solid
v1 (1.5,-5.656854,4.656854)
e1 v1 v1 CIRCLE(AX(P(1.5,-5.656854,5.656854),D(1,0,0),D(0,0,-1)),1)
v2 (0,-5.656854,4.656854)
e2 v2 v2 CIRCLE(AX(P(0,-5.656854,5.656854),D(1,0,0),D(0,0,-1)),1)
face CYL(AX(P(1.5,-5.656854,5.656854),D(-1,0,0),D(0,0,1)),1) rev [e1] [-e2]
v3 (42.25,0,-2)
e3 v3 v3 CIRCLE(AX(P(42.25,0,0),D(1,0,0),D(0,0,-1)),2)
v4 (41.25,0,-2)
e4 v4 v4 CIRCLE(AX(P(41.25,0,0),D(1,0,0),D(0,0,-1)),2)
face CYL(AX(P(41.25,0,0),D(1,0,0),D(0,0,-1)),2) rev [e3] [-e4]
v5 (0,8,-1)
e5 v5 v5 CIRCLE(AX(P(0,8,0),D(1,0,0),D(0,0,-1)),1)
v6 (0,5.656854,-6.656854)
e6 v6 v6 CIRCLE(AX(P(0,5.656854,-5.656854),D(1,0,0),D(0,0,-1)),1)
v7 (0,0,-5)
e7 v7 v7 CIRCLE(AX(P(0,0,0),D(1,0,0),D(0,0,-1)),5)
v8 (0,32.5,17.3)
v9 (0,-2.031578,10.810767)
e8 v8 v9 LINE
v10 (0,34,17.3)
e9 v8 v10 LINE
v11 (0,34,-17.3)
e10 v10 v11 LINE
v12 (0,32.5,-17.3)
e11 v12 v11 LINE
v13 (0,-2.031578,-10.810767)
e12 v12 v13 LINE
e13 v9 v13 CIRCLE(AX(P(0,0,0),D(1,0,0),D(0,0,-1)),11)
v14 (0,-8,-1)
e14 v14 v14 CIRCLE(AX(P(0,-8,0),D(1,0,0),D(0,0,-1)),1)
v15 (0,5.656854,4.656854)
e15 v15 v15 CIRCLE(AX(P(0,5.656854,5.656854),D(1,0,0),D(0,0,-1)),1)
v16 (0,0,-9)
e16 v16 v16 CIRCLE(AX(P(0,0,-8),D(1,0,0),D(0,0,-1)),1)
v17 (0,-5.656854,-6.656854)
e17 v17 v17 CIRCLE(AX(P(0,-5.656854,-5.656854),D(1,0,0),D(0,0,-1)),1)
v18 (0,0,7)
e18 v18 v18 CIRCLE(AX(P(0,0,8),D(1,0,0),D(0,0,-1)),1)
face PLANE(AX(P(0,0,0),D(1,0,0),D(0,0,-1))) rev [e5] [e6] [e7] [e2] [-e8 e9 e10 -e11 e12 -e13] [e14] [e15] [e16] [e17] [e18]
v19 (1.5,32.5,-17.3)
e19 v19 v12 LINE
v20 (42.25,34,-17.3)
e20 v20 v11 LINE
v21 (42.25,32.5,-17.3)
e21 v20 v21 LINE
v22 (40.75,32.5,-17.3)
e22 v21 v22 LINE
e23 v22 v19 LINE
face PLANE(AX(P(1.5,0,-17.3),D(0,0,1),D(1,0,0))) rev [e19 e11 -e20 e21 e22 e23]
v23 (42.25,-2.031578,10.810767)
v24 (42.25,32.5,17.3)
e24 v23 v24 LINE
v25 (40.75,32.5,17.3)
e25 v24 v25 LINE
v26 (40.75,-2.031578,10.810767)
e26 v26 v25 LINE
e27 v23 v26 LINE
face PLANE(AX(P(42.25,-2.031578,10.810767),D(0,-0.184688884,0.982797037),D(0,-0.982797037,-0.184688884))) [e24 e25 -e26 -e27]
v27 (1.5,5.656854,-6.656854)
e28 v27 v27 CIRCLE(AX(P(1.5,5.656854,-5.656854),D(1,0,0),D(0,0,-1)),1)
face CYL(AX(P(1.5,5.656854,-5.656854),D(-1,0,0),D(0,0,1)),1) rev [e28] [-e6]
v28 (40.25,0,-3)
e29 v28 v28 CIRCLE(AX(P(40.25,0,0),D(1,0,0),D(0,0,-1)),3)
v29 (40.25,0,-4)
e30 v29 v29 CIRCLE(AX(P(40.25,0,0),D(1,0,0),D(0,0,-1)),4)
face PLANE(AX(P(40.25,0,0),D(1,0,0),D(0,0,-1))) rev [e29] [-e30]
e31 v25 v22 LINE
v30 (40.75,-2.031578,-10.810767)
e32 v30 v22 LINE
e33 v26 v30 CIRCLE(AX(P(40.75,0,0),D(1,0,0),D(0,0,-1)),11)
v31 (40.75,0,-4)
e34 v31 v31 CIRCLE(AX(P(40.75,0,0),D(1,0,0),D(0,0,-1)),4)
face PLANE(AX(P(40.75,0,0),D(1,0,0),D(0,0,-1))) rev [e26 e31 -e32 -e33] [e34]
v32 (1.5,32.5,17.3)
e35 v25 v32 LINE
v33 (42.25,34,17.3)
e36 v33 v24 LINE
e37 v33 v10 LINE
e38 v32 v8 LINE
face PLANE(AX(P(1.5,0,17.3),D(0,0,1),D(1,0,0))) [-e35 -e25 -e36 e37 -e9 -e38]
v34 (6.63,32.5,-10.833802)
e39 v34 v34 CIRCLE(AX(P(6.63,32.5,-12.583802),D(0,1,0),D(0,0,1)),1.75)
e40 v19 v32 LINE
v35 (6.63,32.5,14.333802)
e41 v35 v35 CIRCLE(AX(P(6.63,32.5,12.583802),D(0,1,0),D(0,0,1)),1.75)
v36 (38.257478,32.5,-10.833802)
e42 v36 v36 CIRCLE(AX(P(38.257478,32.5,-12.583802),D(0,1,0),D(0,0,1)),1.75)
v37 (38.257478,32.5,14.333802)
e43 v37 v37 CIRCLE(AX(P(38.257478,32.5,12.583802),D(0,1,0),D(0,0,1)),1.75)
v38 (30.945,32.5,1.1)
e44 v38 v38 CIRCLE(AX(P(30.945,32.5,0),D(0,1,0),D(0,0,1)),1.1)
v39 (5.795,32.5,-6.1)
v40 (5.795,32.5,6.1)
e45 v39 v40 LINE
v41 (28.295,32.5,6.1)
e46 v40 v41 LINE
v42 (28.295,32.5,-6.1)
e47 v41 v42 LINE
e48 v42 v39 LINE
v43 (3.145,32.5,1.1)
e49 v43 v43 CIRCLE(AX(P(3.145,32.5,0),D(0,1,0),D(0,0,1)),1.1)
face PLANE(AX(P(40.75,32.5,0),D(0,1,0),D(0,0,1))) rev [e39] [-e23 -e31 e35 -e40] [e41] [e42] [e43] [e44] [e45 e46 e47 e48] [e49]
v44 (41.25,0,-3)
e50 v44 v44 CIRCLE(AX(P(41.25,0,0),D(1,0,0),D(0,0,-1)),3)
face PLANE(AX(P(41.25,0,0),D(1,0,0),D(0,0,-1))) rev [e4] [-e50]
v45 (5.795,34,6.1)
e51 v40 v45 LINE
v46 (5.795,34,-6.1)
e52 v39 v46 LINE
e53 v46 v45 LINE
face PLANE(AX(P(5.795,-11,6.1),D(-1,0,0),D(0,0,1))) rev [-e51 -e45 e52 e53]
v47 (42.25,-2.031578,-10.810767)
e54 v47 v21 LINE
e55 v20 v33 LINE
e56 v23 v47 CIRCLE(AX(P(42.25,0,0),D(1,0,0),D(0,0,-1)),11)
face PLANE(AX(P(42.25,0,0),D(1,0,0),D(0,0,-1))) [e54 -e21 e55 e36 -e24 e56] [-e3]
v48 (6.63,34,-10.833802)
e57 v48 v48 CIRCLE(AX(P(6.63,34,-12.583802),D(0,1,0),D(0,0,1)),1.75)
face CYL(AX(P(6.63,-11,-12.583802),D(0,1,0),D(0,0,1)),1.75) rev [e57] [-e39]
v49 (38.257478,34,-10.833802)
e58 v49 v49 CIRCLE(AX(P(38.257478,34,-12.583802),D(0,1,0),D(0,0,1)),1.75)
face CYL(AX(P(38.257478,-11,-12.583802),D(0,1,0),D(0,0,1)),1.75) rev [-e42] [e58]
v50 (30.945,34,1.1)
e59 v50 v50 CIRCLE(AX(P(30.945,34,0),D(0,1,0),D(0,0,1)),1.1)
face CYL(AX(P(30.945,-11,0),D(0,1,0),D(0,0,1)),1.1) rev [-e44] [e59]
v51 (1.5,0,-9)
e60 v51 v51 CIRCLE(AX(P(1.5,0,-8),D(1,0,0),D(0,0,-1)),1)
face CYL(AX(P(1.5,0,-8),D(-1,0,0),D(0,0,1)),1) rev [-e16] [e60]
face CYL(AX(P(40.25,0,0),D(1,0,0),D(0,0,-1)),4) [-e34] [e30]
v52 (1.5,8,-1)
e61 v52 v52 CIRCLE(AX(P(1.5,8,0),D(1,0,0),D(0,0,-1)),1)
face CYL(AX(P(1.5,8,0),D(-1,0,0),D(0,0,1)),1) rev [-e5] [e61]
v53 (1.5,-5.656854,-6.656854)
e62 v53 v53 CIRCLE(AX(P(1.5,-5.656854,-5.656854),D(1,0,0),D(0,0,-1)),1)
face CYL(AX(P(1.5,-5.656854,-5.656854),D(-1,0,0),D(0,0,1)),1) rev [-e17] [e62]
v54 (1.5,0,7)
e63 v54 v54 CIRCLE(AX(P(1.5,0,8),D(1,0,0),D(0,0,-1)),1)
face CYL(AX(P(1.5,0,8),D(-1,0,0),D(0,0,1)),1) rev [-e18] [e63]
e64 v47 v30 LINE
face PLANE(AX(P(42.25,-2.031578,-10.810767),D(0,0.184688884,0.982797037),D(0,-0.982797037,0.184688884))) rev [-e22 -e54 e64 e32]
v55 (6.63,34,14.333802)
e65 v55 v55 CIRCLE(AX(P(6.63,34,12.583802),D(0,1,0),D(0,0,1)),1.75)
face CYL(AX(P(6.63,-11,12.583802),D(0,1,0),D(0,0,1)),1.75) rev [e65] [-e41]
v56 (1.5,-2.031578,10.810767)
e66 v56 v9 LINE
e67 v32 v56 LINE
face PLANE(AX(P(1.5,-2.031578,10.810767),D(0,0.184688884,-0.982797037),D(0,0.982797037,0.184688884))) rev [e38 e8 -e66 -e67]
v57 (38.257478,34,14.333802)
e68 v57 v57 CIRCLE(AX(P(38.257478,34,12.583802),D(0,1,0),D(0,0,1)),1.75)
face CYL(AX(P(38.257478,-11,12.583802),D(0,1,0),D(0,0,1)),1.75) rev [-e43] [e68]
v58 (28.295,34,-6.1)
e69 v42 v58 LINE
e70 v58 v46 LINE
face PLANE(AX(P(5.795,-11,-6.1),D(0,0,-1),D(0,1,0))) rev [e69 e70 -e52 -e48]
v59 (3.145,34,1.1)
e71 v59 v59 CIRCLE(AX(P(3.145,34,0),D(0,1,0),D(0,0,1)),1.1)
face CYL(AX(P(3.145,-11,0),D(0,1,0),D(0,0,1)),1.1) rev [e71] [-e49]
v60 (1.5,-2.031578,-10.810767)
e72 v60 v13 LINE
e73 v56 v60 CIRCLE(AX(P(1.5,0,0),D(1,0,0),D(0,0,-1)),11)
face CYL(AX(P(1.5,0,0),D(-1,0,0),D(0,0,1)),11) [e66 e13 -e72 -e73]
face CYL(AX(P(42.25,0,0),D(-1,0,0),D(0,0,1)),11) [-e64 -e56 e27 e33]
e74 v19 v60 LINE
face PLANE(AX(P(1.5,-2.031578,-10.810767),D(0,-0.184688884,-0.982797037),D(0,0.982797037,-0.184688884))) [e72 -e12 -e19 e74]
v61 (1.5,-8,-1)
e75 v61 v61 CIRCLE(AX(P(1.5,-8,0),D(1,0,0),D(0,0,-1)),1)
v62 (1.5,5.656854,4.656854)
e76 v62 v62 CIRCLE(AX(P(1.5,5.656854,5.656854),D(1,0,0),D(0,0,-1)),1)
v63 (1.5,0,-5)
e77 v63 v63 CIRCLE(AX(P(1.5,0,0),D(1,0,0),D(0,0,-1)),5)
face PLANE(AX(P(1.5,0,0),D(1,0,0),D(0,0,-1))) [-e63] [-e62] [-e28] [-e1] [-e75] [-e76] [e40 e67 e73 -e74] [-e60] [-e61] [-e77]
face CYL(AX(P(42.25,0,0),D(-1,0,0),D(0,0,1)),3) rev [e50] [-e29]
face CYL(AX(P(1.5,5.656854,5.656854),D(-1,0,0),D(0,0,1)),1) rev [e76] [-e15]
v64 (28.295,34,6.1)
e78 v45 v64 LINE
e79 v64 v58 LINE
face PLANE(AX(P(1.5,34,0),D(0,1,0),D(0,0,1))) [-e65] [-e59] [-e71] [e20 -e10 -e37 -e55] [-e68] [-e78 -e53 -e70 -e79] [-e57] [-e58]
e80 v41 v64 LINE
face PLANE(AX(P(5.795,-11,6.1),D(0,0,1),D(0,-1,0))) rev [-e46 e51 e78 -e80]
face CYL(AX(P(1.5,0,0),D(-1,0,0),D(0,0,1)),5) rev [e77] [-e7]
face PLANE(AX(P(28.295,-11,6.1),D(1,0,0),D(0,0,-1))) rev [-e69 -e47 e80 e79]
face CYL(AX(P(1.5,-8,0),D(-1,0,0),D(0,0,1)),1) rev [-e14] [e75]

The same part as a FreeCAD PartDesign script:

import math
import FreeCAD as App
import Part
import Sketcher
from FreeCAD import Vector
Q = App.Units.Quantity

doc = App.newDocument("Part")
body = doc.addObject("PartDesign::Body", "Body")

# Sketch on YZ plane
sketch1 = body.newObject("Sketcher::SketchObject", "Sketch")
sketch1.AttachmentSupport = (doc.getObject("YZ_Plane"), [""])
sketch1.MapMode = "FlatFace"
sketch1.addGeometry(Part.LineSegment(Vector(32.5, 17.3, 0), Vector(-2, 10.8, 0)), False)
sketch1.addGeometry(Part.ArcOfCircle(Part.Circle(Vector(0, 0, 0), Vector(0, 0, 1), 11), math.radians(101), math.radians(259)), False)
sketch1.addGeometry(Part.LineSegment(Vector(-2, -10.8, 0), Vector(32.5, -17.3, 0)), False)
sketch1.addGeometry(Part.LineSegment(Vector(32.5, -17.3, 0), Vector(34, -17.3, 0)), False)
sketch1.addGeometry(Part.LineSegment(Vector(34, -17.3, 0), Vector(34, 17.3, 0)), False)
sketch1.addGeometry(Part.LineSegment(Vector(34, 17.3, 0), Vector(32.5, 17.3, 0)), False)
sketch1.addGeometry(Part.Circle(Vector(-5.7, 5.7, 0), Vector(0, 0, 1), 1), False)
sketch1.addGeometry(Part.Circle(Vector(-8, 0, 0), Vector(0, 0, 1), 1), False)
sketch1.addGeometry(Part.Circle(Vector(-5.7, -5.7, 0), Vector(0, 0, 1), 1), False)
sketch1.addGeometry(Part.Circle(Vector(0, 8, 0), Vector(0, 0, 1), 1), False)
sketch1.addGeometry(Part.Circle(Vector(5.7, 5.7, 0), Vector(0, 0, 1), 1), False)
sketch1.addGeometry(Part.Circle(Vector(0, 0, 0), Vector(0, 0, 1), 5), False)
sketch1.addGeometry(Part.Circle(Vector(0, -8, 0), Vector(0, 0, 1), 1), False)
sketch1.addGeometry(Part.Circle(Vector(8, 0, 0), Vector(0, 0, 1), 1), False)
sketch1.addGeometry(Part.Circle(Vector(5.7, -5.7, 0), Vector(0, 0, 1), 1), False)
sketch1.addConstraint(Sketcher.Constraint("Tangent", 0, 2, 1, 1))
sketch1.addConstraint(Sketcher.Constraint("Tangent", 1, 2, 2, 1))
sketch1.addConstraint(Sketcher.Constraint("Coincident", 2, 2, 3, 1))
sketch1.addConstraint(Sketcher.Constraint("Coincident", 3, 2, 4, 1))
sketch1.addConstraint(Sketcher.Constraint("Coincident", 4, 2, 5, 1))
sketch1.addConstraint(Sketcher.Constraint("Coincident", 5, 2, 0, 1))
sketch1.addConstraint(Sketcher.Constraint("Horizontal", 3))
sketch1.addConstraint(Sketcher.Constraint("Vertical", 4))
sketch1.addConstraint(Sketcher.Constraint("Horizontal", 5))
sketch1.addConstraint(Sketcher.Constraint("Coincident", 1, 3, -1, 1))
sketch1.addConstraint(Sketcher.Constraint("Coincident", 11, 3, -1, 1))
sketch1.addConstraint(Sketcher.Constraint("Equal", 6, 7))
sketch1.addConstraint(Sketcher.Constraint("Equal", 7, 8))
sketch1.addConstraint(Sketcher.Constraint("Equal", 8, 9))
sketch1.addConstraint(Sketcher.Constraint("Equal", 9, 10))
sketch1.addConstraint(Sketcher.Constraint("Equal", 10, 12))
sketch1.addConstraint(Sketcher.Constraint("Equal", 12, 13))
sketch1.addConstraint(Sketcher.Constraint("Equal", 13, 14))
sketch1.addConstraint(Sketcher.Constraint("Symmetric", 8, 3, 10, 3, -1, 1))
sketch1.addConstraint(Sketcher.Constraint("Symmetric", 9, 3, 12, 3, -1, 1))
sketch1.addConstraint(Sketcher.Constraint("Symmetric", 7, 3, 13, 3, -1, 1))
sketch1.addConstraint(Sketcher.Constraint("Symmetric", 6, 3, 14, 3, -1, 1))
sketch1.addConstraint(Sketcher.Constraint("Symmetric", 6, 3, 10, 3, -2))
sketch1.addConstraint(Sketcher.Constraint("Symmetric", 2, 2, 5, 2, -1))
sketch1.addConstraint(Sketcher.Constraint("PointOnObject", 7, 3, -1))
sketch1.addConstraint(Sketcher.Constraint("PointOnObject", 9, 3, -2))
sketch1.addConstraint(Sketcher.Constraint("Diameter", 6, Q("2 mm")))
sketch1.addConstraint(Sketcher.Constraint("Diameter", 11, Q("10 mm")))
sketch1.addConstraint(Sketcher.Constraint("Radius", 1, Q("11 mm")))
sketch1.addConstraint(Sketcher.Constraint("DistanceX", 3, 1, 3, 2, Q("1.5 mm")))
sketch1.addConstraint(Sketcher.Constraint("DistanceY", 4, 1, 4, 2, Q("34.6 mm")))
sketch1.addConstraint(Sketcher.Constraint("DistanceX", 7, 3, -1, 1, Q("8 mm")))
sketch1.addConstraint(Sketcher.Constraint("DistanceY", -1, 1, 9, 3, Q("8 mm")))
sketch1.addConstraint(Sketcher.Constraint("DistanceX", -1, 1, 3, 2, Q("34 mm")))
sketch1.addConstraint(Sketcher.Constraint("DistanceY", 8, 3, 6, 3, Q("11.313708 mm")))
sketch1.addConstraint(Sketcher.Constraint("DistanceX", 6, 3, 10, 3, Q("11.313708 mm")))
pad1 = body.newObject("PartDesign::Pad", "Pad")
pad1.Profile = sketch1
pad1.Length = 1.5

# Sketch on YZ plane
sketch2 = body.newObject("Sketcher::SketchObject", "Sketch001")
sketch2.AttachmentSupport = (doc.getObject("YZ_Plane"), [""])
sketch2.MapMode = "FlatFace"
sketch2.addGeometry(Part.LineSegment(Vector(34, 17.3, 0), Vector(32.5, 17.3, 0)), False)
sketch2.addGeometry(Part.LineSegment(Vector(32.5, 17.3, 0), Vector(32.5, -17.3, 0)), False)
sketch2.addGeometry(Part.LineSegment(Vector(32.5, -17.3, 0), Vector(34, -17.3, 0)), False)
sketch2.addGeometry(Part.LineSegment(Vector(34, -17.3, 0), Vector(34, 17.3, 0)), False)
sketch2.addConstraint(Sketcher.Constraint("Coincident", 0, 2, 1, 1))
sketch2.addConstraint(Sketcher.Constraint("Coincident", 1, 2, 2, 1))
sketch2.addConstraint(Sketcher.Constraint("Coincident", 2, 2, 3, 1))
sketch2.addConstraint(Sketcher.Constraint("Coincident", 3, 2, 0, 1))
sketch2.addConstraint(Sketcher.Constraint("Horizontal", 0))
sketch2.addConstraint(Sketcher.Constraint("Vertical", 1))
sketch2.addConstraint(Sketcher.Constraint("Horizontal", 2))
sketch2.addConstraint(Sketcher.Constraint("Vertical", 3))
sketch2.addConstraint(Sketcher.Constraint("DistanceX", 0, 2, 0, 1, Q("1.5 mm")))
sketch2.addConstraint(Sketcher.Constraint("DistanceY", 1, 2, 1, 1, Q("34.6 mm")))
sketch2.addConstraint(Sketcher.Constraint("DistanceX", -1, 1, 2, 2, Q("34 mm")))
sketch2.addConstraint(Sketcher.Constraint("DistanceY", -1, 1, 0, 2, Q("17.3 mm")))
pad2 = body.newObject("PartDesign::Pad", "Pad001")
pad2.Profile = sketch2
pad2.Length = 40.75

# Sketch on YZ plane
sketch3 = body.newObject("Sketcher::SketchObject", "Sketch002")
sketch3.AttachmentSupport = (doc.getObject("YZ_Plane"), [""])
sketch3.MapMode = "FlatFace"
sketch3.AttachmentOffset = App.Placement(Vector(0, 0, 40.75), App.Rotation())
sketch3.addGeometry(Part.LineSegment(Vector(34, 17.3, 0), Vector(32.5, 17.3, 0)), False)
sketch3.addGeometry(Part.LineSegment(Vector(32.5, 17.3, 0), Vector(-2, 10.8, 0)), False)
sketch3.addGeometry(Part.ArcOfCircle(Part.Circle(Vector(0, 0, 0), Vector(0, 0, 1), 11), math.radians(101), math.radians(259)), False)
sketch3.addGeometry(Part.LineSegment(Vector(-2, -10.8, 0), Vector(32.5, -17.3, 0)), False)
sketch3.addGeometry(Part.LineSegment(Vector(32.5, -17.3, 0), Vector(34, -17.3, 0)), False)
sketch3.addGeometry(Part.LineSegment(Vector(34, -17.3, 0), Vector(34, 17.3, 0)), False)
sketch3.addGeometry(Part.Circle(Vector(0, 0, 0), Vector(0, 0, 1), 3), False)
sketch3.addConstraint(Sketcher.Constraint("Coincident", 0, 2, 1, 1))
sketch3.addConstraint(Sketcher.Constraint("Tangent", 1, 2, 2, 1))
sketch3.addConstraint(Sketcher.Constraint("Tangent", 2, 2, 3, 1))
sketch3.addConstraint(Sketcher.Constraint("Coincident", 3, 2, 4, 1))
sketch3.addConstraint(Sketcher.Constraint("Coincident", 4, 2, 5, 1))
sketch3.addConstraint(Sketcher.Constraint("Coincident", 5, 2, 0, 1))
sketch3.addConstraint(Sketcher.Constraint("Horizontal", 0))
sketch3.addConstraint(Sketcher.Constraint("Horizontal", 4))
sketch3.addConstraint(Sketcher.Constraint("Vertical", 5))
sketch3.addConstraint(Sketcher.Constraint("Coincident", 2, 3, -1, 1))
sketch3.addConstraint(Sketcher.Constraint("Coincident", 6, 3, -1, 1))
sketch3.addConstraint(Sketcher.Constraint("Symmetric", 0, 2, 3, 2, -1))
sketch3.addConstraint(Sketcher.Constraint("Diameter", 6, Q("6 mm")))
sketch3.addConstraint(Sketcher.Constraint("Radius", 2, Q("11 mm")))
sketch3.addConstraint(Sketcher.Constraint("DistanceX", 0, 2, 0, 1, Q("1.5 mm")))
sketch3.addConstraint(Sketcher.Constraint("DistanceY", 5, 1, 5, 2, Q("34.6 mm")))
sketch3.addConstraint(Sketcher.Constraint("DistanceX", -1, 1, 4, 2, Q("34 mm")))
pad3 = body.newObject("PartDesign::Pad", "Pad002")
pad3.Profile = sketch3
pad3.Length = 1.5

# Sketch on XZ plane
sketch4 = body.newObject("Sketcher::SketchObject", "Sketch003")
sketch4.AttachmentSupport = (doc.getObject("XZ_Plane"), [""])
sketch4.MapMode = "FlatFace"
sketch4.AttachmentOffset = App.Placement(Vector(0, 0, -34), App.Rotation())
sketch4.addGeometry(Part.Circle(Vector(30.9, 0, 0), Vector(0, 0, 1), 1.1), False)
sketch4.addGeometry(Part.Circle(Vector(3.1, 0, 0), Vector(0, 0, 1), 1.1), False)
sketch4.addGeometry(Part.Circle(Vector(6.6, -12.6, 0), Vector(0, 0, 1), 1.8), False)
sketch4.addGeometry(Part.Circle(Vector(38.3, -12.6, 0), Vector(0, 0, 1), 1.8), False)
sketch4.addGeometry(Part.Circle(Vector(38.3, 12.6, 0), Vector(0, 0, 1), 1.8), False)
sketch4.addGeometry(Part.Circle(Vector(6.6, 12.6, 0), Vector(0, 0, 1), 1.8), False)
sketch4.addGeometry(Part.LineSegment(Vector(5.8, -6.1, 0), Vector(5.8, 6.1, 0)), False)
sketch4.addGeometry(Part.LineSegment(Vector(5.8, 6.1, 0), Vector(28.3, 6.1, 0)), False)
sketch4.addGeometry(Part.LineSegment(Vector(28.3, 6.1, 0), Vector(28.3, -6.1, 0)), False)
sketch4.addGeometry(Part.LineSegment(Vector(28.3, -6.1, 0), Vector(5.8, -6.1, 0)), False)
sketch4.addConstraint(Sketcher.Constraint("Coincident", 6, 2, 7, 1))
sketch4.addConstraint(Sketcher.Constraint("Coincident", 7, 2, 8, 1))
sketch4.addConstraint(Sketcher.Constraint("Coincident", 8, 2, 9, 1))
sketch4.addConstraint(Sketcher.Constraint("Coincident", 9, 2, 6, 1))
sketch4.addConstraint(Sketcher.Constraint("Vertical", 6))
sketch4.addConstraint(Sketcher.Constraint("Horizontal", 7))
sketch4.addConstraint(Sketcher.Constraint("Vertical", 8))
sketch4.addConstraint(Sketcher.Constraint("Horizontal", 9))
sketch4.addConstraint(Sketcher.Constraint("Equal", 0, 1))
sketch4.addConstraint(Sketcher.Constraint("Equal", 2, 3))
sketch4.addConstraint(Sketcher.Constraint("Equal", 3, 4))
sketch4.addConstraint(Sketcher.Constraint("Equal", 4, 5))
sketch4.addConstraint(Sketcher.Constraint("Symmetric", 3, 3, 4, 3, -1))
sketch4.addConstraint(Sketcher.Constraint("Symmetric", 2, 3, 5, 3, -1))
sketch4.addConstraint(Sketcher.Constraint("PointOnObject", 0, 3, -1))
sketch4.addConstraint(Sketcher.Constraint("PointOnObject", 1, 3, -1))
sketch4.addConstraint(Sketcher.Constraint("Horizontal", 2, 3, 3, 3))
sketch4.addConstraint(Sketcher.Constraint("Diameter", 0, Q("2.2 mm")))
sketch4.addConstraint(Sketcher.Constraint("Diameter", 2, Q("3.5 mm")))
sketch4.addConstraint(Sketcher.Constraint("DistanceX", 7, 1, 7, 2, Q("22.5 mm")))
sketch4.addConstraint(Sketcher.Constraint("DistanceY", 6, 1, 6, 2, Q("12.2 mm")))
sketch4.addConstraint(Sketcher.Constraint("DistanceY", -1, 1, 6, 2, Q("6.1 mm")))
sketch4.addConstraint(Sketcher.Constraint("DistanceX", 1, 3, 0, 3, Q("27.8 mm")))
sketch4.addConstraint(Sketcher.Constraint("DistanceX", -1, 1, 2, 3, Q("6.63 mm")))
sketch4.addConstraint(Sketcher.Constraint("DistanceX", 1, 3, 6, 2, Q("2.65 mm")))
sketch4.addConstraint(Sketcher.Constraint("DistanceX", -1, 1, 0, 3, Q("30.945 mm")))
sketch4.addConstraint(Sketcher.Constraint("DistanceY", 2, 3, -1, 1, Q("12.583802 mm")))
sketch4.addConstraint(Sketcher.Constraint("DistanceX", 2, 3, 3, 3, Q("31.627478 mm")))
pocket1 = body.newObject("PartDesign::Pocket", "Pocket")
pocket1.Profile = sketch4
pocket1.Type = "ThroughAll"
pocket1.Reversed = True

# Sketch on YZ plane
sketch5 = body.newObject("Sketcher::SketchObject", "Sketch004")
sketch5.AttachmentSupport = (doc.getObject("YZ_Plane"), [""])
sketch5.MapMode = "FlatFace"
sketch5.AttachmentOffset = App.Placement(Vector(0, 0, 40.75), App.Rotation())
sketch5.addGeometry(Part.Circle(Vector(0, 0, 0), Vector(0, 0, 1), 4), False)
sketch5.addGeometry(Part.Circle(Vector(0, 0, 0), Vector(0, 0, 1), 3), False)
sketch5.addConstraint(Sketcher.Constraint("Coincident", 0, 3, -1, 1))
sketch5.addConstraint(Sketcher.Constraint("Coincident", 1, 3, -1, 1))
sketch5.addConstraint(Sketcher.Constraint("Diameter", 0, Q("8 mm")))
sketch5.addConstraint(Sketcher.Constraint("Diameter", 1, Q("6 mm")))
pad4 = body.newObject("PartDesign::Pad", "Pad003")
pad4.Profile = sketch5
pad4.Length = 0.5
pad4.Reversed = True

# Sketch on YZ plane
sketch6 = body.newObject("Sketcher::SketchObject", "Sketch005")
sketch6.AttachmentSupport = (doc.getObject("YZ_Plane"), [""])
sketch6.MapMode = "FlatFace"
sketch6.AttachmentOffset = App.Placement(Vector(0, 0, 42.25), App.Rotation())
sketch6.addGeometry(Part.Circle(Vector(0, 0, 0), Vector(0, 0, 1), 3), False)
sketch6.addGeometry(Part.Circle(Vector(0, 0, 0), Vector(0, 0, 1), 2), False)
sketch6.addConstraint(Sketcher.Constraint("Coincident", 0, 3, -1, 1))
sketch6.addConstraint(Sketcher.Constraint("Coincident", 1, 3, -1, 1))
sketch6.addConstraint(Sketcher.Constraint("Diameter", 0, Q("6 mm")))
sketch6.addConstraint(Sketcher.Constraint("Diameter", 1, Q("4 mm")))
pad5 = body.newObject("PartDesign::Pad", "Pad004")
pad5.Profile = sketch6
pad5.Length = 1
pad5.Reversed = True

doc.recompute()
